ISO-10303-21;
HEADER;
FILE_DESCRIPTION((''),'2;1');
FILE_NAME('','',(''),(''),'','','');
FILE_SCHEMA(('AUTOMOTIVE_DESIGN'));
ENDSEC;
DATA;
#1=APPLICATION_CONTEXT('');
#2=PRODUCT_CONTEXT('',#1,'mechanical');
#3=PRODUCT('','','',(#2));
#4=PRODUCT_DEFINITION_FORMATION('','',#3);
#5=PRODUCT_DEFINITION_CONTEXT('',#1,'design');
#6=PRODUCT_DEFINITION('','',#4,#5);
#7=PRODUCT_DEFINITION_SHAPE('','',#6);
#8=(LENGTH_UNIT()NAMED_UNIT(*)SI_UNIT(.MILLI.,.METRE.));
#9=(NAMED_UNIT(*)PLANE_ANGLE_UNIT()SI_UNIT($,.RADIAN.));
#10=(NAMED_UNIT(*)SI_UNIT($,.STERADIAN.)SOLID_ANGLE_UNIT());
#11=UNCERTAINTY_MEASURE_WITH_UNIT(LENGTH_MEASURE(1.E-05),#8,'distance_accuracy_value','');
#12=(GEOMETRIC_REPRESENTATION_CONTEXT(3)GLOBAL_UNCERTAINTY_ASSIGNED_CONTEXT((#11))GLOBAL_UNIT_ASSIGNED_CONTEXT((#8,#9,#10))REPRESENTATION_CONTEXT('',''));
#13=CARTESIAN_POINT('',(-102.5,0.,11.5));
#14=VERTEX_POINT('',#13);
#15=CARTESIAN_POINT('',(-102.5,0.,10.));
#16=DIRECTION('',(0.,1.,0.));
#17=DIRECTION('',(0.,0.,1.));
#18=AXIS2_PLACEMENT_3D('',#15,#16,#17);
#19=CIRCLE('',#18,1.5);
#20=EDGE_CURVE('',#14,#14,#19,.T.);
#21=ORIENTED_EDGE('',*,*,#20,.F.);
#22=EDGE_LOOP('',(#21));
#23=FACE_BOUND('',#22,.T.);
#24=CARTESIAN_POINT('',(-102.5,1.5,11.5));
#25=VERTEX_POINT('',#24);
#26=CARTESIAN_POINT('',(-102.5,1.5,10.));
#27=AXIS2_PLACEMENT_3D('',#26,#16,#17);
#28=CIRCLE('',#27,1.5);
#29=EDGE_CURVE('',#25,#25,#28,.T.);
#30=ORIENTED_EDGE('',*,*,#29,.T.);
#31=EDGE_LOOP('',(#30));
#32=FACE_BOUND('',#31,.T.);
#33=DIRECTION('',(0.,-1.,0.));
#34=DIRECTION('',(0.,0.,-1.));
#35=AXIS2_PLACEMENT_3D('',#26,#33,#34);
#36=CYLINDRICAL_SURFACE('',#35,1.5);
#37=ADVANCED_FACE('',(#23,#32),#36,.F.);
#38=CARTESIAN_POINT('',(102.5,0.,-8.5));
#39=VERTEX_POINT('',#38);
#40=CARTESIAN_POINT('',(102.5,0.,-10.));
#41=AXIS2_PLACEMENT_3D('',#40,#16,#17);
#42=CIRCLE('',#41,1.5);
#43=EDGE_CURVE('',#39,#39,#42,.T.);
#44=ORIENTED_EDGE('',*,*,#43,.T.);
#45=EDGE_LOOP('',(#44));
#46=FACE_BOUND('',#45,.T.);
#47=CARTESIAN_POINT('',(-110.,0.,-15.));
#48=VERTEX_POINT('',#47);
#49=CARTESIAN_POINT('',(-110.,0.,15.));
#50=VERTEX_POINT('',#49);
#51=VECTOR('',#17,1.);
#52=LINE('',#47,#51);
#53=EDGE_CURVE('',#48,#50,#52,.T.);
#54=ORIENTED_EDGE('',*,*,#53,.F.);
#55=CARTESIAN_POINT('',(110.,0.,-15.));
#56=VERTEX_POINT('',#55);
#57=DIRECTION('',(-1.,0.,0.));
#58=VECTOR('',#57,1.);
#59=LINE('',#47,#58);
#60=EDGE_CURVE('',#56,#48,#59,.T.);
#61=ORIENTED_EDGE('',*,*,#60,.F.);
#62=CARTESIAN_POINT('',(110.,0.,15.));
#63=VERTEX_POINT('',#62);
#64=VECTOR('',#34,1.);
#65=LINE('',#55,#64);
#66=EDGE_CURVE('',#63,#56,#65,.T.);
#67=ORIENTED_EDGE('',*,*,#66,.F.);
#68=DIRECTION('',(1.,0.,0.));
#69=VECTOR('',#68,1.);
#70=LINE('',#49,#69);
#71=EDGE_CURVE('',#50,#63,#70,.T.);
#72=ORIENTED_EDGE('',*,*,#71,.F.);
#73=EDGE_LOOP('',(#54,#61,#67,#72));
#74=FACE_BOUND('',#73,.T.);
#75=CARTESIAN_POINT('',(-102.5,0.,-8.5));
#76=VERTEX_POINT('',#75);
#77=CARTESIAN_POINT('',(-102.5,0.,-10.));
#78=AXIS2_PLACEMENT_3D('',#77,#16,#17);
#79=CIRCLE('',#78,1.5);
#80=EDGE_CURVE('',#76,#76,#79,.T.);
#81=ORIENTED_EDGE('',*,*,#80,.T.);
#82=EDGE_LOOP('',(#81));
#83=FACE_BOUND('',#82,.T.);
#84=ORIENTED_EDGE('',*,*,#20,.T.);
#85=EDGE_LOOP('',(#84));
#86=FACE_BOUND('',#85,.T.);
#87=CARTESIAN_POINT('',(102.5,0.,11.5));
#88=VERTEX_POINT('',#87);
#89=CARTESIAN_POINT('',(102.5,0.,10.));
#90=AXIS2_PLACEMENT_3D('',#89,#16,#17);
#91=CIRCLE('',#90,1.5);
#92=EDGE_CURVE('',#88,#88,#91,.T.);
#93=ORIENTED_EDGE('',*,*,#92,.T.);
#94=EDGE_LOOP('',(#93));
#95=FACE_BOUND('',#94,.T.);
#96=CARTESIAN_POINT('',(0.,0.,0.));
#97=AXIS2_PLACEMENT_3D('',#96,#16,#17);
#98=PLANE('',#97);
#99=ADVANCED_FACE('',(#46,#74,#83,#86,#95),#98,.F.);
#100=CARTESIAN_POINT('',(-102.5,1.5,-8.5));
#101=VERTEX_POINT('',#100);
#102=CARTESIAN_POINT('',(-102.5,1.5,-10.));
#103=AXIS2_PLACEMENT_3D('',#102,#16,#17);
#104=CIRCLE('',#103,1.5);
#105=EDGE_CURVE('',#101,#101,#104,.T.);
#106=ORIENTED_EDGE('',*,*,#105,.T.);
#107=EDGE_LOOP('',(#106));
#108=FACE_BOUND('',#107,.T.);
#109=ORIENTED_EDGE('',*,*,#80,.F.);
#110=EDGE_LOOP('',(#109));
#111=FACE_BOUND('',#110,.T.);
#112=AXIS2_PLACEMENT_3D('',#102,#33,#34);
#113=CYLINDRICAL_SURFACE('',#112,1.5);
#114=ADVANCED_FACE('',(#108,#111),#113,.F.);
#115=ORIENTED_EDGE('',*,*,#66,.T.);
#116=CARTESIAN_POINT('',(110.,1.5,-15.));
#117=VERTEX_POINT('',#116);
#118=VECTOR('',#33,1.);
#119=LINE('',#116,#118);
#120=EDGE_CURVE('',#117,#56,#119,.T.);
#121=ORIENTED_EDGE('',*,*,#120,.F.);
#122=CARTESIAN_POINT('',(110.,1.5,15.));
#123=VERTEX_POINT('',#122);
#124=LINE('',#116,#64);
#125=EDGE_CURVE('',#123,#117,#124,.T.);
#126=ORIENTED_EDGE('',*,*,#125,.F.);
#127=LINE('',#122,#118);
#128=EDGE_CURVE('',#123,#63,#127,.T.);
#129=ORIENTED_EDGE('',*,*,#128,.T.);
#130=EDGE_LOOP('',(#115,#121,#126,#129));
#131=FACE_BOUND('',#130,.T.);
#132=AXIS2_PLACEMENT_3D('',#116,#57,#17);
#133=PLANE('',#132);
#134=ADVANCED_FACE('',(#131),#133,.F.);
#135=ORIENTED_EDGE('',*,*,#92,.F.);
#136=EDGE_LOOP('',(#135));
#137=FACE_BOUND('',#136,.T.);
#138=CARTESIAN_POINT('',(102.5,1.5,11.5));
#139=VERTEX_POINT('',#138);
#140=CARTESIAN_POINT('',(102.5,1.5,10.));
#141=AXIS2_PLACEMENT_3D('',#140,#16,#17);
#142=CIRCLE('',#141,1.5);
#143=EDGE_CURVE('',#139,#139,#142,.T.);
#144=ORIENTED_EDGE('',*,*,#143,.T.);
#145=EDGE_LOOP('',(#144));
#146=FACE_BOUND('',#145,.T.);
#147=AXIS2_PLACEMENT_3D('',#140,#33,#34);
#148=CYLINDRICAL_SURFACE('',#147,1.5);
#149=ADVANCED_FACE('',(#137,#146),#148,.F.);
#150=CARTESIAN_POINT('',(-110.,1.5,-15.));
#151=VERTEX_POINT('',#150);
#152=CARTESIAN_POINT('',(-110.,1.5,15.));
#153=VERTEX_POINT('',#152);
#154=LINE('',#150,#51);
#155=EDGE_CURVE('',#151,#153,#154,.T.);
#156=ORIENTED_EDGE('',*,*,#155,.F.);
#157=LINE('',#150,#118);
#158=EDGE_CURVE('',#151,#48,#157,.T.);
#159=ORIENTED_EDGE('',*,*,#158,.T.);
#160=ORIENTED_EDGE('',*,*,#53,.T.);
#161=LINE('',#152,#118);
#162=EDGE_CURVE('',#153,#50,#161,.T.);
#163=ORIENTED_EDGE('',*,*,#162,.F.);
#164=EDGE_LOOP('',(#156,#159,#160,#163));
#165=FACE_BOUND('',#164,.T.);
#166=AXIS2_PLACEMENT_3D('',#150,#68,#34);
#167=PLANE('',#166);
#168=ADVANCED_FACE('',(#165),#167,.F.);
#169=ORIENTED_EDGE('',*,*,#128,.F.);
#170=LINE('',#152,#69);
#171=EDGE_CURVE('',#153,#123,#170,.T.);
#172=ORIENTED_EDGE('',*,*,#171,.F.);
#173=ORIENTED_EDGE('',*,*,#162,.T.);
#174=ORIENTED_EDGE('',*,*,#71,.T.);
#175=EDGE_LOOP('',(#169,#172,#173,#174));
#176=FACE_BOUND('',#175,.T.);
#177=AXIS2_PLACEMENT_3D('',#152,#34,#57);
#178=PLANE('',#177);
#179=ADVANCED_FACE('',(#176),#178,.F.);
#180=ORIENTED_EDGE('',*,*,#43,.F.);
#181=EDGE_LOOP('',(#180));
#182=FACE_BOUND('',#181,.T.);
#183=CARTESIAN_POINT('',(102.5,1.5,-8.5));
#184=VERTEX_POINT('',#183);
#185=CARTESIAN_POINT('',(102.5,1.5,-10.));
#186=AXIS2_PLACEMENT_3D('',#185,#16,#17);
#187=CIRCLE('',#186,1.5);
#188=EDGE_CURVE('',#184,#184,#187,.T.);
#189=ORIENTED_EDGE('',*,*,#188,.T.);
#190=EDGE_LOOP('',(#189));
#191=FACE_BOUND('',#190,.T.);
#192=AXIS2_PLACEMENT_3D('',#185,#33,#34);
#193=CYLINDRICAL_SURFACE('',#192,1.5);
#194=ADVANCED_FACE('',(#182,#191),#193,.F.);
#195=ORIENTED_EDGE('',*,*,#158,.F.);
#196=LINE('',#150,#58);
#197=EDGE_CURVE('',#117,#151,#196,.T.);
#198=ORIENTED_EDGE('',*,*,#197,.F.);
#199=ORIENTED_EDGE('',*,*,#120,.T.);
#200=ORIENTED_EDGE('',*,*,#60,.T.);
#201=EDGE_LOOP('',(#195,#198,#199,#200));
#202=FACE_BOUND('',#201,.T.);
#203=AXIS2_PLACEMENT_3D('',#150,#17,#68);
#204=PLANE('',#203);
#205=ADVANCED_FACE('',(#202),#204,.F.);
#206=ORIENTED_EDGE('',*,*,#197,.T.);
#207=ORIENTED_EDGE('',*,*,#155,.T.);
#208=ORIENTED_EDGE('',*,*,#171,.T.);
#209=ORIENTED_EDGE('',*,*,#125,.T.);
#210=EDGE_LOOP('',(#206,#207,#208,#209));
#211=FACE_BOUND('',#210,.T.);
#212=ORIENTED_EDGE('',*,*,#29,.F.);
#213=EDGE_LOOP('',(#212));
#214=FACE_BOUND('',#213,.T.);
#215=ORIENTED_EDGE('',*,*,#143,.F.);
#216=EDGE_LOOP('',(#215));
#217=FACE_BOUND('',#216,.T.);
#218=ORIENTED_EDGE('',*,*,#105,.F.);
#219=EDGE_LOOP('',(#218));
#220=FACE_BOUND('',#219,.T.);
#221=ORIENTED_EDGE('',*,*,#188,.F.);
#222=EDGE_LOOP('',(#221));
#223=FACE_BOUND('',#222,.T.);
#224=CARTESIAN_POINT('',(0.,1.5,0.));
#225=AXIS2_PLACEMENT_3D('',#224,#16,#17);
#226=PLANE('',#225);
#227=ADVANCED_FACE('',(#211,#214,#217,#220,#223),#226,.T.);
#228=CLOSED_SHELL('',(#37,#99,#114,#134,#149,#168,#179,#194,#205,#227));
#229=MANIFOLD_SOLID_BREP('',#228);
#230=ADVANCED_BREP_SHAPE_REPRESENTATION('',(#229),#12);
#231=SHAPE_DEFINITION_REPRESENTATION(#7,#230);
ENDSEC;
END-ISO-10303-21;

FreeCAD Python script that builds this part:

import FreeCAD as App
import Part
import Sketcher

V = App.Vector

doc = App.newDocument("Part")
body = doc.addObject("PartDesign::Body", "Body")

# Sketch on XZ plane
sketch1 = body.newObject("Sketcher::SketchObject", "Sketch")
sketch1.AttachmentSupport = (doc.getObject("XZ_Plane"), [""])
sketch1.MapMode = "FlatFace"
sketch1.addGeometry(Part.LineSegment(V(-110, -15, 0), V(-110, 15, 0)), False)
sketch1.addGeometry(Part.LineSegment(V(-110, 15, 0), V(110, 15, 0)), False)
sketch1.addGeometry(Part.LineSegment(V(110, 15, 0), V(110, -15, 0)), False)
sketch1.addGeometry(Part.LineSegment(V(110, -15, 0), V(-110, -15, 0)), False)
sketch1.addGeometry(Part.Circle(V(-102.5, 10, 0), V(0, 0, 1), 1.5), False)
sketch1.addGeometry(Part.Circle(V(102.5, 10, 0), V(0, 0, 1), 1.5), False)
sketch1.addGeometry(Part.Circle(V(-102.5, -10, 0), V(0, 0, 1), 1.5), False)
sketch1.addGeometry(Part.Circle(V(102.5, -10, 0), V(0, 0, 1), 1.5), False)
sketch1.addConstraint(Sketcher.Constraint("Coincident", 0, 2, 1, 1))
sketch1.addConstraint(Sketcher.Constraint("Coincident", 1, 2, 2, 1))
sketch1.addConstraint(Sketcher.Constraint("Coincident", 2, 2, 3, 1))
sketch1.addConstraint(Sketcher.Constraint("Coincident", 3, 2, 0, 1))
sketch1.addConstraint(Sketcher.Constraint("Vertical", 0))
sketch1.addConstraint(Sketcher.Constraint("Horizontal", 1))
sketch1.addConstraint(Sketcher.Constraint("Vertical", 2))
sketch1.addConstraint(Sketcher.Constraint("Horizontal", 3))
sketch1.addConstraint(Sketcher.Constraint("Equal", 4, 5))
sketch1.addConstraint(Sketcher.Constraint("Equal", 5, 6))
sketch1.addConstraint(Sketcher.Constraint("Equal", 6, 7))
sketch1.addConstraint(Sketcher.Constraint("Symmetric", 5, 3, 6, 3, -1, 1))
sketch1.addConstraint(Sketcher.Constraint("Symmetric", 4, 3, 7, 3, -1, 1))
sketch1.addConstraint(Sketcher.Constraint("Symmetric", 0, 2, 2, 2, -1, 1))
sketch1.addConstraint(Sketcher.Constraint("Symmetric", 4, 3, 5, 3, -2))
sketch1.addConstraint(Sketcher.Constraint("Diameter", 4, 3.0))
sketch1.addConstraint(Sketcher.Constraint("DistanceX", 1, 1, 1, 2, 220.0))
sketch1.addConstraint(Sketcher.Constraint("DistanceY", 0, 1, 0, 2, 30.0))
sketch1.addConstraint(Sketcher.Constraint("DistanceY", -1, 1, 4, 3, 10.0))
sketch1.addConstraint(Sketcher.Constraint("DistanceX", 4, 3, 5, 3, 205.0))
pad1 = body.newObject("PartDesign::Pad", "Pad")
pad1.Profile = sketch1
pad1.Length = 1.5
pad1.Reversed = True

doc.recompute()
